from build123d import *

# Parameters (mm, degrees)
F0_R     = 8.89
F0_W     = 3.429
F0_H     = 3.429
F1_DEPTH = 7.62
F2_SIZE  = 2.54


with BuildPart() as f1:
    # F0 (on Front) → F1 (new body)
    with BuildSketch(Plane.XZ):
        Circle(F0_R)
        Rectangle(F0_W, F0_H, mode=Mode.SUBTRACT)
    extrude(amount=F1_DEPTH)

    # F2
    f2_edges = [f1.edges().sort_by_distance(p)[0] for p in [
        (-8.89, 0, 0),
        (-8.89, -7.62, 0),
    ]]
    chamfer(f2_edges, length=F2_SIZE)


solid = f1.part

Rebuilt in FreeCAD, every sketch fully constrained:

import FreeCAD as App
import Part
import Sketcher

V = App.Vector
Q = App.Units.Quantity


def edges_at(feature, points):
    """Names of the edges that pass closest to the given points."""
    edges = feature.Shape.Edges
    near = lambda p: min(range(len(edges)), key=lambda i: edges[i].distToShape(Part.Vertex(*p))[0])
    return sorted({f"Edge{near(p) + 1}" for p in points})

doc = App.newDocument("Part")
body = doc.addObject("PartDesign::Body", "Body")

sketch1 = body.newObject("Sketcher::SketchObject", "Sketch")
sketch1.AttachmentSupport = (doc.getObject("XZ_Plane"), [""])
sketch1.MapMode = "FlatFace"
sketch1.addGeometry([
    Part.Circle(V(0, 0, 0), V(0, 0, 1), 8.89),
    Part.LineSegment(V(1.7145, -1.7145, 0), V(-1.7145, -1.7145, 0)),
    Part.LineSegment(V(-1.7145, -1.7145, 0), V(-1.7145, 1.7145, 0)),
    Part.LineSegment(V(-1.7145, 1.7145, 0), V(1.7145, 1.7145, 0)),
    Part.LineSegment(V(1.7145, 1.7145, 0), V(1.7145, -1.7145, 0)),
], False)
sketch1.addConstraint([
    Sketcher.Constraint("Coincident", 1, 2, 2, 1),
    Sketcher.Constraint("Coincident", 2, 2, 3, 1),
    Sketcher.Constraint("Coincident", 3, 2, 4, 1),
    Sketcher.Constraint("Coincident", 4, 2, 1, 1),
    Sketcher.Constraint("Horizontal", 1),
    Sketcher.Constraint("Vertical", 2),
    Sketcher.Constraint("Horizontal", 3),
    Sketcher.Constraint("Vertical", 4),
    Sketcher.Constraint("Coincident", 0, 3, -1, 1),
    Sketcher.Constraint("Symmetric", 1, 2, 3, 2, -1, 1),
    Sketcher.Constraint("Equal", 3, 2),
    Sketcher.Constraint("Diameter", 0, Q("0.7 in")),
    Sketcher.Constraint("DistanceX", 1, 2, 1, 1, Q("0.135 in")),
])
pad1 = body.newObject("PartDesign::Pad", "Pad")
pad1.Profile = sketch1
pad1.Length = Q("0.3 in")
doc.recompute()

chamfer = body.newObject("PartDesign::Chamfer", "Chamfer")
chamfer.Base = (pad1, edges_at(pad1, [(-8.89, 0, 0), (-8.89, -7.62, 0)]))
chamfer.Size = Q("0.1 in")

doc.recompute()
